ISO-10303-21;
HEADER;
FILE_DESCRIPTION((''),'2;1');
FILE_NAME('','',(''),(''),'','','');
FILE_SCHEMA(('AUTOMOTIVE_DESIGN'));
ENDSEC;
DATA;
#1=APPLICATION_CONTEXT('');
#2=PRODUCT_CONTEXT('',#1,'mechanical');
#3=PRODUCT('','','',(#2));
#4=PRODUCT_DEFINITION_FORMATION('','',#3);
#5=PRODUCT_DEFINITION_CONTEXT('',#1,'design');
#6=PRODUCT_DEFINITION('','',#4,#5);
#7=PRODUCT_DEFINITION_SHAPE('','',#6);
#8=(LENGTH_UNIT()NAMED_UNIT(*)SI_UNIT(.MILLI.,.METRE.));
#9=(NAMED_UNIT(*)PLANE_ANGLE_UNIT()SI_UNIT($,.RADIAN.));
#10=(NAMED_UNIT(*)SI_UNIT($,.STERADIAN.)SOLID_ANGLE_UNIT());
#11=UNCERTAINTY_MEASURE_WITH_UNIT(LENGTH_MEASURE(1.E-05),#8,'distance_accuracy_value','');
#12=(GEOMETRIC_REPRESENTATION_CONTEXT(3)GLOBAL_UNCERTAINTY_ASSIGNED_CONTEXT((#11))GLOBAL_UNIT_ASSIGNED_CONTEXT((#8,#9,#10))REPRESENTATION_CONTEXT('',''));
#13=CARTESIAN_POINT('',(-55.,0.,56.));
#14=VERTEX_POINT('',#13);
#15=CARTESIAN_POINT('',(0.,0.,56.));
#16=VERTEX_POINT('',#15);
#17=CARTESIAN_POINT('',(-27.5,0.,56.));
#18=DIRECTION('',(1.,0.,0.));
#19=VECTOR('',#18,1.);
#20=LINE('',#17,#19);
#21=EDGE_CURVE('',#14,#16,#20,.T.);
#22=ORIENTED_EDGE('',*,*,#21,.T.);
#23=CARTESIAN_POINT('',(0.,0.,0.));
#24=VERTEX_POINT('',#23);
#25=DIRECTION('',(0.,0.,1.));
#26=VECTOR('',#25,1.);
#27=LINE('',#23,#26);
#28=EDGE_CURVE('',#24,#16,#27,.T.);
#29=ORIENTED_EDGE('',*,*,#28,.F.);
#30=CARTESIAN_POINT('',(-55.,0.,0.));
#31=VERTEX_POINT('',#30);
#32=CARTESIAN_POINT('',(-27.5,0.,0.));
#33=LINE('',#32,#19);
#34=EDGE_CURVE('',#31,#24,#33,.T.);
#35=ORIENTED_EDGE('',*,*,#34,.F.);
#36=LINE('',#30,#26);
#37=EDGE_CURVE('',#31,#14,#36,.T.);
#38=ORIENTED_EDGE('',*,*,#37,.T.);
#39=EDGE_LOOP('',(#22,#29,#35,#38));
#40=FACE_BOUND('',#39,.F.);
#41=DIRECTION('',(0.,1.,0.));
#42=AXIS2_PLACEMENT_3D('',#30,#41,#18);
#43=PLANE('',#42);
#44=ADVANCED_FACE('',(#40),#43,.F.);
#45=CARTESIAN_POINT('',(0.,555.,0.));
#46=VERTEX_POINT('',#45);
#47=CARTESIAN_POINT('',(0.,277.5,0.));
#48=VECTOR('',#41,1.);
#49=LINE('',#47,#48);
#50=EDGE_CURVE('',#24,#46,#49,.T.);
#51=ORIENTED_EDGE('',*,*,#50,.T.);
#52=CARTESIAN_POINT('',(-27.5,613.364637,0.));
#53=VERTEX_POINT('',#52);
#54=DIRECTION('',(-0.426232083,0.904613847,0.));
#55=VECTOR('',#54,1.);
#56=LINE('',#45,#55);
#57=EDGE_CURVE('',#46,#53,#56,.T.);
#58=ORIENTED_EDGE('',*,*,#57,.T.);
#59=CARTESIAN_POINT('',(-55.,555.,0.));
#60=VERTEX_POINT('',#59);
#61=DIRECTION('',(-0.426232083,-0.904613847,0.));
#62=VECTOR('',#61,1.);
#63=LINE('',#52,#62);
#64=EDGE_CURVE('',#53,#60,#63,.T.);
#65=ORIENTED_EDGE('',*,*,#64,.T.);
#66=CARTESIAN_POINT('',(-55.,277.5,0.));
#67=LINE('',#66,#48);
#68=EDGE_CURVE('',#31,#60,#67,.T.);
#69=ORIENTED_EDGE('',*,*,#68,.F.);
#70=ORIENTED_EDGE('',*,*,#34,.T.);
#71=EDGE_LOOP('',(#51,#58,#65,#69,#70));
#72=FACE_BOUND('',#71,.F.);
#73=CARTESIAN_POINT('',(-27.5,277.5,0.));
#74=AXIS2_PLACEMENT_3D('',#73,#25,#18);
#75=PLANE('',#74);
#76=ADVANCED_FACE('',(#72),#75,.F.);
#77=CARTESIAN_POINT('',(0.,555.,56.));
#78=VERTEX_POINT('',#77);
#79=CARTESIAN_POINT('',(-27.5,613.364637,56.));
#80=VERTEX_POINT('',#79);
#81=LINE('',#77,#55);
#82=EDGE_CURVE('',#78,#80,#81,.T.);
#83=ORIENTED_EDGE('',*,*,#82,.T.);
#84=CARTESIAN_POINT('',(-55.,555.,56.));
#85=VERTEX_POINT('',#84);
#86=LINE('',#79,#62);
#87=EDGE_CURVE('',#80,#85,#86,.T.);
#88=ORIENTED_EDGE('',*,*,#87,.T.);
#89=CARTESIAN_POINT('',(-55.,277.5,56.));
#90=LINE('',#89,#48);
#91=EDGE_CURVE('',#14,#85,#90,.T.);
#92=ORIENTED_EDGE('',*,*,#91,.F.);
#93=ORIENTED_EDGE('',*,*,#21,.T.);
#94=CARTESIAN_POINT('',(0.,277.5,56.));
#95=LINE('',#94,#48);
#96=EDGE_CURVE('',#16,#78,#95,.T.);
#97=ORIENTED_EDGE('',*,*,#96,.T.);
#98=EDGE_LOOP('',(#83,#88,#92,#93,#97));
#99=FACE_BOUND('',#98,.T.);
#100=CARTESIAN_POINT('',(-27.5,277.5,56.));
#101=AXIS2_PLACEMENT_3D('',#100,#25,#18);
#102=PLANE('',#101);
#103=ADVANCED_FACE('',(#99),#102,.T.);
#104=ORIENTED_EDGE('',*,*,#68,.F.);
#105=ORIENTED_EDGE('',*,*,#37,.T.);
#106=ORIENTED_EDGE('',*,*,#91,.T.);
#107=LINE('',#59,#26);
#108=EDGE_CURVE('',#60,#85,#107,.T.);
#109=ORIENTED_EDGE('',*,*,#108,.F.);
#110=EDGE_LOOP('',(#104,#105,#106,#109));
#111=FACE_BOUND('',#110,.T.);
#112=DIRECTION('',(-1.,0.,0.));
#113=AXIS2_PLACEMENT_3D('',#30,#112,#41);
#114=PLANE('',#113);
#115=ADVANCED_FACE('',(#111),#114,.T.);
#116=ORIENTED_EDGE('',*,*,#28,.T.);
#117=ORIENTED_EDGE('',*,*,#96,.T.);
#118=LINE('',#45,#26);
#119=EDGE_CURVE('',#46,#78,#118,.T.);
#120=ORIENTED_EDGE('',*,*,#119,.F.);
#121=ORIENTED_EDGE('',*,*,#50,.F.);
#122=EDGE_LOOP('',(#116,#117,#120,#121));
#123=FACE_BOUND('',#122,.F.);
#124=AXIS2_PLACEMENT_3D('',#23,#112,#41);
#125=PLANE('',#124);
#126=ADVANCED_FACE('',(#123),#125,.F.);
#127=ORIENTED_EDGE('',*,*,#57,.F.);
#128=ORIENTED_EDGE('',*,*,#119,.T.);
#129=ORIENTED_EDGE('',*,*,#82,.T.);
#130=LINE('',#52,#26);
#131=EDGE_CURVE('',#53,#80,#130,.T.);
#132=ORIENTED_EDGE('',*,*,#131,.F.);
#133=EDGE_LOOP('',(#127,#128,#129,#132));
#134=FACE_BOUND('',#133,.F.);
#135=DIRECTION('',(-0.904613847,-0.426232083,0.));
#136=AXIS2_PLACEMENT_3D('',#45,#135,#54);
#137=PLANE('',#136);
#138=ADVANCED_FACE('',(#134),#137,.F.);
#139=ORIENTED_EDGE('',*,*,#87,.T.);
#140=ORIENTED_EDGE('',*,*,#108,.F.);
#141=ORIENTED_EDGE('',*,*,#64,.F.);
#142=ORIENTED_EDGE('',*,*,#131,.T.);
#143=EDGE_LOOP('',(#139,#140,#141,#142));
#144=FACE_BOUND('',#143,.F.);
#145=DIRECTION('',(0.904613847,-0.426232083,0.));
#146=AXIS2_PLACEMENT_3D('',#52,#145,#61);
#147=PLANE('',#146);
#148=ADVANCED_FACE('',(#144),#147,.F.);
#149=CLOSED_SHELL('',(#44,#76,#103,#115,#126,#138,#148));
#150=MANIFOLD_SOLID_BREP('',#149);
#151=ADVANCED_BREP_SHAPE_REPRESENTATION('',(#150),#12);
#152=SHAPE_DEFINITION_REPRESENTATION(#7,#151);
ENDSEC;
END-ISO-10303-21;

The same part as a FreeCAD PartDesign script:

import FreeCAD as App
import Part
import Sketcher

V = App.Vector


def add_polygon(sketch, points):
    """Adds a closed chain of lines whose ends are joined by coincident constraints."""
    first, n = sketch.GeometryCount, len(points)
    for a, b in zip(points, points[1:] + points[:1]):
        sketch.addGeometry(Part.LineSegment(App.Vector(*a, 0), App.Vector(*b, 0)), False)
    for i in range(n):
        sketch.addConstraint(Sketcher.Constraint("Coincident", first + i, 2, first + (i + 1) % n, 1))

doc = App.newDocument("Part")
body = doc.addObject("PartDesign::Body", "Body")

# Sketch on XY plane
sketch1 = body.newObject("Sketcher::SketchObject", "Sketch")
sketch1.AttachmentSupport = (doc.getObject("XY_Plane"), [""])
sketch1.MapMode = "FlatFace"
add_polygon(sketch1, [(-55, 555), (-55, 0), (0, 0), (0, 555), (-28, 613)])  # lines 0-4
sketch1.addConstraint([
    Sketcher.Constraint("Vertical", 0),
    Sketcher.Constraint("Horizontal", 1),
    Sketcher.Constraint("Vertical", 2),
    Sketcher.Constraint("Coincident", 1, 2, -1, 1),
    Sketcher.Constraint("Horizontal", 2, 2, 4, 2),
    Sketcher.Constraint("Equal", 3, 4),
    Sketcher.Constraint("DistanceX", 1, 1, 1, 2, 55.0),
    Sketcher.Constraint("DistanceY", 0, 2, 0, 1, 555.0),
    Sketcher.Constraint("Distance", 3, 64.518841),
])
pad1 = body.newObject("PartDesign::Pad", "Pad")
pad1.Profile = sketch1
pad1.Length = 56

doc.recompute()
